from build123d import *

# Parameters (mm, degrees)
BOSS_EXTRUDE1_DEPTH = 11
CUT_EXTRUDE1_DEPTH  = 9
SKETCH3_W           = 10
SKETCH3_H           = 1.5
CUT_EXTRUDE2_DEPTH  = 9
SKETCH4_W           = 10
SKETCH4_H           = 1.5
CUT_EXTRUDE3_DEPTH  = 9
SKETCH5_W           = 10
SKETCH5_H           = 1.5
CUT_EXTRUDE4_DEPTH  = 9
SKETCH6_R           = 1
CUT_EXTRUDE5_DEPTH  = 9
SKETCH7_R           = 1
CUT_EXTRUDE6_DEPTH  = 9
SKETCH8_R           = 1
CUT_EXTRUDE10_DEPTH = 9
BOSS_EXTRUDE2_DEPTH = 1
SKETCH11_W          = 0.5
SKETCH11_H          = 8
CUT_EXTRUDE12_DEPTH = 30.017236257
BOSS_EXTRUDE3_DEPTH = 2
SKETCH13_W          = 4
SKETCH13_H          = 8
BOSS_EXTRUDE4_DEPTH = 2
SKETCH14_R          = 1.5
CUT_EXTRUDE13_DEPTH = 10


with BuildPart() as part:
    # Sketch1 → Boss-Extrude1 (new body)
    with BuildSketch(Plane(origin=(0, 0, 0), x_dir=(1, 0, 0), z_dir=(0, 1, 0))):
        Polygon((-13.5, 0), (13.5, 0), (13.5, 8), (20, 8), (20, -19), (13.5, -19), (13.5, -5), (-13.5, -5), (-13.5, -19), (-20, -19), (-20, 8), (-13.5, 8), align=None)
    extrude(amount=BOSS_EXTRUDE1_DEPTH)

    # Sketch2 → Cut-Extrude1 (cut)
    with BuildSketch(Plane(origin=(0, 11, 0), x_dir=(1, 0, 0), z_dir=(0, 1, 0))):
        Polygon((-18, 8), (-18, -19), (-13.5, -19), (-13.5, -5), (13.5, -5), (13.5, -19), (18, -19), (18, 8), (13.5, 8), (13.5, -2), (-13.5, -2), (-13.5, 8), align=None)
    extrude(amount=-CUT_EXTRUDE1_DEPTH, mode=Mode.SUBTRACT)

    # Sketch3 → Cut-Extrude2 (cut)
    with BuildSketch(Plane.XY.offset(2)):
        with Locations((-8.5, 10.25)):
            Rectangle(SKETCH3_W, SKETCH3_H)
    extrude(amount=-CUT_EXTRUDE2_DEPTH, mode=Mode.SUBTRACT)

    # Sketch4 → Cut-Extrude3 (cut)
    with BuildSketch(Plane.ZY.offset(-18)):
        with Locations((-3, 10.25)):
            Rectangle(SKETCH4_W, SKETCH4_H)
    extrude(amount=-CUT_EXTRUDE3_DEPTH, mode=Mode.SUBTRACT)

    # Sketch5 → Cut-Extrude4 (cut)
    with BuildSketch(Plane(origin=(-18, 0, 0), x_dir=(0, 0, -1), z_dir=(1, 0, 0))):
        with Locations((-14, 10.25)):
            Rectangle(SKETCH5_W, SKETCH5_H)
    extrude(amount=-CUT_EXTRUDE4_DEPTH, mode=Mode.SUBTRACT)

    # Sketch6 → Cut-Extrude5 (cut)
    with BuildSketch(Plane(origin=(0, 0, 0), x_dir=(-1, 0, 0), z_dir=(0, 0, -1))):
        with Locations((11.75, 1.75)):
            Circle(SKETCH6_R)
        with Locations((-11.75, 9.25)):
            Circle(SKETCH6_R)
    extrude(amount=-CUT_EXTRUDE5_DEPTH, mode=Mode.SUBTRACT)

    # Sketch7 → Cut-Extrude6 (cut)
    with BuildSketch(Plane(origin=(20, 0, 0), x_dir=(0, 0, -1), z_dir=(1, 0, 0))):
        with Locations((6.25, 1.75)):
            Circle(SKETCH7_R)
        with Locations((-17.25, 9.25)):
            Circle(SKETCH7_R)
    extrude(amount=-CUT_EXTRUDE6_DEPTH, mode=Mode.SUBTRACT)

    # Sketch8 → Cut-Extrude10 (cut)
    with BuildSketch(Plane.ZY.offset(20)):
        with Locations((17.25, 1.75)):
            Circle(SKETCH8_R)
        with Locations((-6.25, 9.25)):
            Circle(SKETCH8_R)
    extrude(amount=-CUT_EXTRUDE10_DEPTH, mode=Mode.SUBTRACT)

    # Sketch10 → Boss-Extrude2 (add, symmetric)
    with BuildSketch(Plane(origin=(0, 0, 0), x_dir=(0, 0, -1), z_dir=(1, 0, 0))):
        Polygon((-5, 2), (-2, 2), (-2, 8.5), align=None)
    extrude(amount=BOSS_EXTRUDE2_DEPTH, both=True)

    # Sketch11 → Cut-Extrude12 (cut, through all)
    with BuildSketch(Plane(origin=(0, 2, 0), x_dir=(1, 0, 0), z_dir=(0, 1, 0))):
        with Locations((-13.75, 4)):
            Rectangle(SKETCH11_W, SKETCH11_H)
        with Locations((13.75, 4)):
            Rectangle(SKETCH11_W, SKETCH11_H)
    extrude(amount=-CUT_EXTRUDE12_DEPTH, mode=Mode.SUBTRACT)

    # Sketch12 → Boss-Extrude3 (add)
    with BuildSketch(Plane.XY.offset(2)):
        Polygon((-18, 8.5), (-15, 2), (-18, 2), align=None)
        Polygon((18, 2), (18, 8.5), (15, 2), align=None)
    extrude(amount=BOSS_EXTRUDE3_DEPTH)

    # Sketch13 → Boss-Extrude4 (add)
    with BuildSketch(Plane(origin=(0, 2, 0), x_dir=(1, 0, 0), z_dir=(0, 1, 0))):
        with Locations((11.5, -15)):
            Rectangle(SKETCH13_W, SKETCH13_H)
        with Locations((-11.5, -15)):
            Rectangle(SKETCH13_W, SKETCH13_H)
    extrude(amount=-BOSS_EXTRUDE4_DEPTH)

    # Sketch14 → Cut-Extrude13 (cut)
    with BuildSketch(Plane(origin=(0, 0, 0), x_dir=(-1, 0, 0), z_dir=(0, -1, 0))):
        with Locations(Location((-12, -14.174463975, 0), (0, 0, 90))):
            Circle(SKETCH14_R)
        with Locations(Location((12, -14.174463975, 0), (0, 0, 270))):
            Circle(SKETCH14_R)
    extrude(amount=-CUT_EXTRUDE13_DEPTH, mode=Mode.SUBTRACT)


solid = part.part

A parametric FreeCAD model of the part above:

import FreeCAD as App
import Part
import Sketcher

V = App.Vector


def add_polygon(sketch, points):
    """Adds a closed chain of lines whose ends are joined by coincident constraints."""
    first, n = sketch.GeometryCount, len(points)
    for a, b in zip(points, points[1:] + points[:1]):
        sketch.addGeometry(Part.LineSegment(App.Vector(*a, 0), App.Vector(*b, 0)), False)
    for i in range(n):
        sketch.addConstraint(Sketcher.Constraint("Coincident", first + i, 2, first + (i + 1) % n, 1))

doc = App.newDocument("Part")
params = doc.addObject("Spreadsheet::Sheet", "Params")
for row, (alias, value) in enumerate([
    ("sketch1_width", "27 mm"),
    ("sketch1_height", "8 mm"),
    ("sketch1_height2", "14 mm"),
    ("sketch1_width2", "6.5 mm"),
    ("pad1_length", "11 mm"),
    ("sketch2_width", "27 mm"),
    ("sketch2_height", "14 mm"),
    ("sketch2_height2", "10 mm"),
    ("sketch2_width2", "4.5 mm"),
    ("pocket1_length", "9 mm"),
    ("sketch3_width", "10 mm"),
    ("sketch3_height", "1.5 mm"),
    ("pocket2_length", "9 mm"),
    ("sketch4_height", "10 mm"),
    ("sketch4_width", "1.5 mm"),
    ("pocket3_length", "9 mm"),
    ("sketch5_height", "10 mm"),
    ("sketch5_width", "1.5 mm"),
    ("pocket4_length", "9 mm"),
    ("sketch6_diameter", "2 mm"),
    ("pocket5_length", "9 mm"),
    ("sketch7_diameter", "2 mm"),
    ("pocket6_length", "9 mm"),
    ("sketch8_diameter", "2 mm"),
    ("pocket7_length", "9 mm"),
    ("sketch9_height", "3 mm"),
    ("sketch9_width", "6.5 mm"),
    ("pad2_length", "2 mm"),
    ("sketch10_height", "8 mm"),
    ("sketch10_width", "0.5 mm"),
    ("sketch11_width", "3 mm"),
    ("sketch11_height", "6.5 mm"),
    ("pad3_length", "2 mm"),
    ("sketch12_width", "4 mm"),
    ("sketch12_height", "8 mm"),
    ("pad4_length", "2 mm"),
    ("sketch13_diameter", "3 mm"),
    ("pocket9_length", "10 mm"),
], start=1):
    params.set(f"A{row}", alias)
    params.set(f"B{row}", "=" + value)
    params.setAlias(f"B{row}", alias)

body = doc.addObject("PartDesign::Body", "Body")

# Sketch on XZ plane
sketch1 = body.newObject("Sketcher::SketchObject", "Sketch")
sketch1.AttachmentSupport = (doc.getObject("XZ_Plane"), [""])
sketch1.MapMode = "FlatFace"
add_polygon(sketch1, [(14, 0), (-14, 0), (-14, -8), (-20, -8), (-20, 19), (-14, 19), (-14, 5), (14, 5), (14, 19), (20, 19), (20, -8), (14, -8)])  # lines 0-11
sketch1.addConstraint([
    Sketcher.Constraint("Horizontal", 0),
    Sketcher.Constraint("Vertical", 1),
    Sketcher.Constraint("Horizontal", 2),
    Sketcher.Constraint("Vertical", 3),
    Sketcher.Constraint("Horizontal", 4),
    Sketcher.Constraint("Vertical", 5),
    Sketcher.Constraint("Horizontal", 6),
    Sketcher.Constraint("Vertical", 7),
    Sketcher.Constraint("Horizontal", 8),
    Sketcher.Constraint("Vertical", 9),
    Sketcher.Constraint("Horizontal", 10),
    Sketcher.Constraint("Vertical", 11),
    Sketcher.Constraint("Symmetric", 0, 2, 11, 2, -1, 1),
    Sketcher.Constraint("Symmetric", 4, 2, 7, 2, -2),
    Sketcher.Constraint("Symmetric", 2, 2, 9, 2, -2),
    Sketcher.Constraint("Vertical", 1, 2, 4, 2),
    Sketcher.Constraint("Equal", 6, 3),
    Sketcher.Constraint("DistanceX", 0, 2, 0, 1, 27.0),
    Sketcher.Constraint("DistanceY", 1, 2, 1, 1, 8.0),
    Sketcher.Constraint("DistanceY", 5, 2, 5, 1, 14.0),
    Sketcher.Constraint("DistanceX", 2, 2, 2, 1, 6.5),
])
sketch1.setExpression("Constraints[29]", "Params.sketch1_width")
sketch1.setExpression("Constraints[30]", "Params.sketch1_height")
sketch1.setExpression("Constraints[31]", "Params.sketch1_height2")
sketch1.setExpression("Constraints[32]", "Params.sketch1_width2")
pad1 = body.newObject("PartDesign::Pad", "Pad")
pad1.Profile = sketch1
pad1.setExpression("Length", "Params.pad1_length")
pad1.Reversed = True

# Sketch on XZ plane
sketch2 = body.newObject("Sketcher::SketchObject", "Sketch001")
sketch2.AttachmentSupport = (doc.getObject("XZ_Plane"), [""])
sketch2.MapMode = "FlatFace"
sketch2.AttachmentOffset = App.Placement(V(0, 0, -11), App.Rotation())
add_polygon(sketch2, [(-18, -8), (-18, 19), (-13.5, 19), (-13.5, 5), (13.5, 5), (13.5, 19), (18, 19), (18, -8), (13.5, -8), (13.5, 2), (-13.5, 2), (-13.5, -8)])  # lines 0-11
sketch2.addConstraint([
    Sketcher.Constraint("Vertical", 0),
    Sketcher.Constraint("Horizontal", 1),
    Sketcher.Constraint("Vertical", 2),
    Sketcher.Constraint("Horizontal", 3),
    Sketcher.Constraint("Vertical", 4),
    Sketcher.Constraint("Horizontal", 5),
    Sketcher.Constraint("Vertical", 6),
    Sketcher.Constraint("Horizontal", 7),
    Sketcher.Constraint("Vertical", 8),
    Sketcher.Constraint("Horizontal", 9),
    Sketcher.Constraint("Vertical", 10),
    Sketcher.Constraint("Horizontal", 11),
    Sketcher.Constraint("Symmetric", 1, 2, 4, 2, -2),
    Sketcher.Constraint("Symmetric", 7, 2, 10, 2, -2),
    Sketcher.Constraint("Vertical", 4, 2, 7, 2),
    Sketcher.Constraint("Equal", 1, 5),
    Sketcher.Constraint("Equal", 9, 0),
    Sketcher.Constraint("DistanceX", 3, 1, 3, 2, 27.0),
    Sketcher.Constraint("DistanceY", 2, 2, 2, 1, 14.0),
    Sketcher.Constraint("DistanceY", 8, 1, 8, 2, 10.0),
    Sketcher.Constraint("DistanceX", 1, 1, 1, 2, 4.5),
    Sketcher.Constraint("DistanceY", -1, 1, 0, 2, 19.0),
])
sketch2.setExpression("Constraints[29]", "Params.sketch2_width")
sketch2.setExpression("Constraints[30]", "Params.sketch2_height")
sketch2.setExpression("Constraints[31]", "Params.sketch2_height2")
sketch2.setExpression("Constraints[32]", "Params.sketch2_width2")
pocket1 = body.newObject("PartDesign::Pocket", "Pocket")
pocket1.Profile = sketch2
pocket1.setExpression("Length", "Params.pocket1_length")
pocket1.Reversed = True

# Sketch on XY plane
sketch3 = body.newObject("Sketcher::SketchObject", "Sketch002")
sketch3.AttachmentSupport = (doc.getObject("XY_Plane"), [""])
sketch3.MapMode = "FlatFace"
sketch3.AttachmentOffset = App.Placement(V(0, 0, 2), App.Rotation())
add_polygon(sketch3, [(-13.5, 11), (-13.5, 9.5), (-3.5, 9.5), (-3.5, 11)])  # lines 0-3
sketch3.addConstraint([
    Sketcher.Constraint("Vertical", 0),
    Sketcher.Constraint("Horizontal", 1),
    Sketcher.Constraint("Vertical", 2),
    Sketcher.Constraint("Horizontal", 3),
    Sketcher.Constraint("DistanceX", 1, 1, 1, 2, 10.0),
    Sketcher.Constraint("DistanceY", 0, 2, 0, 1, 1.5),
    Sketcher.Constraint("DistanceY", -1, 1, 2, 2, 11.0),
    Sketcher.Constraint("DistanceX", 0, 2, -1, 1, 13.5),
])
sketch3.setExpression("Constraints[8]", "Params.sketch3_width")
sketch3.setExpression("Constraints[9]", "Params.sketch3_height")
pocket2 = body.newObject("PartDesign::Pocket", "Pocket001")
pocket2.Profile = sketch3
pocket2.setExpression("Length", "Params.pocket2_length")

# Sketch on YZ plane
sketch4 = body.newObject("Sketcher::SketchObject", "Sketch003")
sketch4.AttachmentSupport = (doc.getObject("YZ_Plane"), [""])
sketch4.MapMode = "FlatFace"
sketch4.AttachmentOffset = App.Placement(V(0, 0, 18), App.Rotation())
add_polygon(sketch4, [(11, -8), (9.5, -8), (9.5, 2), (11, 2)])  # lines 0-3
sketch4.addConstraint([
    Sketcher.Constraint("Horizontal", 0),
    Sketcher.Constraint("Vertical", 1),
    Sketcher.Constraint("Horizontal", 2),
    Sketcher.Constraint("Vertical", 3),
    Sketcher.Constraint("DistanceY", 1, 1, 1, 2, 10.0),
    Sketcher.Constraint("DistanceX", 0, 2, 0, 1, 1.5),
    Sketcher.Constraint("DistanceY", 0, 2, -1, 1, 8.0),
    Sketcher.Constraint("DistanceX", -1, 1, 2, 2, 11.0),
])
sketch4.setExpression("Constraints[8]", "Params.sketch4_height")
sketch4.setExpression("Constraints[9]", "Params.sketch4_width")
pocket3 = body.newObject("PartDesign::Pocket", "Pocket002")
pocket3.Profile = sketch4
pocket3.setExpression("Length", "Params.pocket3_length")
pocket3.Reversed = True

# Sketch on YZ plane
sketch5 = body.newObject("Sketcher::SketchObject", "Sketch004")
sketch5.AttachmentSupport = (doc.getObject("YZ_Plane"), [""])
sketch5.MapMode = "FlatFace"
sketch5.AttachmentOffset = App.Placement(V(0, 0, -18), App.Rotation())
add_polygon(sketch5, [(11, 19), (9.5, 19), (9.5, 9), (11, 9)])  # lines 0-3
sketch5.addConstraint([
    Sketcher.Constraint("Horizontal", 0),
    Sketcher.Constraint("Vertical", 1),
    Sketcher.Constraint("Horizontal", 2),
    Sketcher.Constraint("Vertical", 3),
    Sketcher.Constraint("DistanceY", 1, 2, 1, 1, 10.0),
    Sketcher.Constraint("DistanceX", 0, 2, 0, 1, 1.5),
    Sketcher.Constraint("DistanceY", -1, 1, 0, 2, 19.0),
    Sketcher.Constraint("DistanceX", -1, 1, 2, 2, 11.0),
])
sketch5.setExpression("Constraints[8]", "Params.sketch5_height")
sketch5.setExpression("Constraints[9]", "Params.sketch5_width")
pocket4 = body.newObject("PartDesign::Pocket", "Pocket003")
pocket4.Profile = sketch5
pocket4.setExpression("Length", "Params.pocket4_length")

# Sketch on XY plane
sketch6 = body.newObject("Sketcher::SketchObject", "Sketch005")
sketch6.AttachmentSupport = (doc.getObject("XY_Plane"), [""])
sketch6.MapMode = "FlatFace"
sketch6.addGeometry([
    Part.Circle(V(-11.8, 1.8, 0), V(0, 0, 1), 1),
    Part.Circle(V(11.8, 9.2, 0), V(0, 0, 1), 1),
], False)
sketch6.addConstraint([
    Sketcher.Constraint("Equal", 0, 1),
    Sketcher.Constraint("Diameter", 0, 2.0),
    Sketcher.Constraint("DistanceX", 0, 3, 1, 3, 23.5),
    Sketcher.Constraint("DistanceY", 0, 3, 1, 3, 7.5),
    Sketcher.Constraint("DistanceX", 0, 3, -1, 1, 11.75),
    Sketcher.Constraint("DistanceY", -1, 1, 0, 3, 1.75),
])
sketch6.setExpression("Constraints[1]", "Params.sketch6_diameter")
pocket5 = body.newObject("PartDesign::Pocket", "Pocket004")
pocket5.Profile = sketch6
pocket5.setExpression("Length", "Params.pocket5_length")
pocket5.Reversed = True

# Sketch on YZ plane
sketch7 = body.newObject("Sketcher::SketchObject", "Sketch006")
sketch7.AttachmentSupport = (doc.getObject("YZ_Plane"), [""])
sketch7.MapMode = "FlatFace"
sketch7.AttachmentOffset = App.Placement(V(0, 0, 20), App.Rotation())
sketch7.addGeometry([
    Part.Circle(V(1.8, -6.2, 0), V(0, 0, 1), 1),
    Part.Circle(V(9.2, 17.2, 0), V(0, 0, 1), 1),
], False)
sketch7.addConstraint([
    Sketcher.Constraint("Equal", 0, 1),
    Sketcher.Constraint("Diameter", 0, 2.0),
    Sketcher.Constraint("DistanceX", 0, 3, 1, 3, 7.5),
    Sketcher.Constraint("DistanceY", 0, 3, 1, 3, 23.5),
    Sketcher.Constraint("DistanceX", -1, 1, 0, 3, 1.75),
    Sketcher.Constraint("DistanceY", 0, 3, -1, 1, 6.25),
])
sketch7.setExpression("Constraints[1]", "Params.sketch7_diameter")
pocket6 = body.newObject("PartDesign::Pocket", "Pocket005")
pocket6.Profile = sketch7
pocket6.setExpression("Length", "Params.pocket6_length")

# Sketch on YZ plane
sketch8 = body.newObject("Sketcher::SketchObject", "Sketch007")
sketch8.AttachmentSupport = (doc.getObject("YZ_Plane"), [""])
sketch8.MapMode = "FlatFace"
sketch8.AttachmentOffset = App.Placement(V(0, 0, -20), App.Rotation())
sketch8.addGeometry([
    Part.Circle(V(1.8, 17.2, 0), V(0, 0, 1), 1),
    Part.Circle(V(9.2, -6.2, 0), V(0, 0, 1), 1),
], False)
sketch8.addConstraint([
    Sketcher.Constraint("Equal", 0, 1),
    Sketcher.Constraint("Diameter", 0, 2.0),
    Sketcher.Constraint("DistanceX", 0, 3, 1, 3, 7.5),
    Sketcher.Constraint("DistanceY", 1, 3, 0, 3, 23.5),
    Sketcher.Constraint("DistanceX", -1, 1, 0, 3, 1.75),
    Sketcher.Constraint("DistanceY", -1, 1, 0, 3, 17.25),
])
sketch8.setExpression("Constraints[1]", "Params.sketch8_diameter")
pocket7 = body.newObject("PartDesign::Pocket", "Pocket006")
pocket7.Profile = sketch8
pocket7.setExpression("Length", "Params.pocket7_length")
pocket7.Reversed = True

# Sketch on YZ plane
sketch9 = body.newObject("Sketcher::SketchObject", "Sketch008")
sketch9.AttachmentSupport = (doc.getObject("YZ_Plane"), [""])
sketch9.MapMode = "FlatFace"
add_polygon(sketch9, [(2, 5), (2, 2), (8.5, 2)])  # lines 0-2
sketch9.addConstraint([
    Sketcher.Constraint("Vertical", 0),
    Sketcher.Constraint("Horizontal", 1),
    Sketcher.Constraint("DistanceY", 0, 2, 0, 1, 3.0),
    Sketcher.Constraint("DistanceX", 1, 1, 1, 2, 6.5),
    Sketcher.Constraint("DistanceX", -1, 1, 0, 2, 2.0),
    Sketcher.Constraint("DistanceY", -1, 1, 0, 2, 2.0),
])
sketch9.setExpression("Constraints[5]", "Params.sketch9_height")
sketch9.setExpression("Constraints[6]", "Params.sketch9_width")
pad2 = body.newObject("PartDesign::Pad", "Pad001")
pad2.Profile = sketch9
pad2.setExpression("Length", "Params.pad2_length")
pad2.Midplane = True

# Sketch on XZ plane
sketch10 = body.newObject("Sketcher::SketchObject", "Sketch009")
sketch10.AttachmentSupport = (doc.getObject("XZ_Plane"), [""])
sketch10.MapMode = "FlatFace"
sketch10.AttachmentOffset = App.Placement(V(0, 0, -2), App.Rotation())
add_polygon(sketch10, [(-14, -8), (-14, 0), (-13.5, 0), (-13.5, -8)])  # lines 0-3
add_polygon(sketch10, [(13.5, -8), (13.5, 0), (14, 0), (14, -8)])  # lines 4-7
sketch10.addConstraint([
    Sketcher.Constraint("Vertical", 0),
    Sketcher.Constraint("Horizontal", 1),
    Sketcher.Constraint("Vertical", 2),
    Sketcher.Constraint("Horizontal", 3),
    Sketcher.Constraint("Vertical", 4),
    Sketcher.Constraint("Horizontal", 5),
    Sketcher.Constraint("Vertical", 6),
    Sketcher.Constraint("Horizontal", 7),
    Sketcher.Constraint("Symmetric", 1, 2, 4, 2, -1, 1),
    Sketcher.Constraint("Symmetric", 0, 2, 5, 2, -2),
    Sketcher.Constraint("Horizontal", 3, 2, 6, 2),
    Sketcher.Constraint("DistanceY", 0, 1, 0, 2, 8.0),
    Sketcher.Constraint("DistanceX", 1, 1, 1, 2, 0.5),
    Sketcher.Constraint("DistanceX", 0, 2, -1, 1, 14.0),
])
sketch10.setExpression("Constraints[19]", "Params.sketch10_height")
sketch10.setExpression("Constraints[20]", "Params.sketch10_width")
pocket8 = body.newObject("PartDesign::Pocket", "Pocket007")
pocket8.Profile = sketch10
pocket8.Type = "ThroughAll"
pocket8.Reversed = True

# Sketch on XY plane
sketch11 = body.newObject("Sketcher::SketchObject", "Sketch010")
sketch11.AttachmentSupport = (doc.getObject("XY_Plane"), [""])
sketch11.MapMode = "FlatFace"
sketch11.AttachmentOffset = App.Placement(V(0, 0, 2), App.Rotation())
add_polygon(sketch11, [(-15, 2), (-18, 8.5), (-18, 2)])  # lines 0-2
add_polygon(sketch11, [(18, 2), (18, 8.5), (15, 2)])  # lines 3-5
sketch11.addConstraint([
    Sketcher.Constraint("Vertical", 1),
    Sketcher.Constraint("Horizontal", 2),
    Sketcher.Constraint("Vertical", 3),
    Sketcher.Constraint("Horizontal", 5),
    Sketcher.Constraint("Symmetric", 0, 2, 3, 2, -2),
    Sketcher.Constraint("Symmetric", 2, 2, 4, 2, -2),
    Sketcher.Constraint("DistanceX", 2, 1, 2, 2, 3.0),
    Sketcher.Constraint("DistanceY", 1, 2, 1, 1, 6.5),
    Sketcher.Constraint("DistanceX", 0, 2, -1, 1, 18.0),
    Sketcher.Constraint("DistanceY", -1, 1, 1, 2, 2.0),
])
sketch11.setExpression("Constraints[12]", "Params.sketch11_width")
sketch11.setExpression("Constraints[13]", "Params.sketch11_height")
pad3 = body.newObject("PartDesign::Pad", "Pad002")
pad3.Profile = sketch11
pad3.setExpression("Length", "Params.pad3_length")

# Sketch on XZ plane
sketch12 = body.newObject("Sketcher::SketchObject", "Sketch011")
sketch12.AttachmentSupport = (doc.getObject("XZ_Plane"), [""])
sketch12.MapMode = "FlatFace"
sketch12.AttachmentOffset = App.Placement(V(0, 0, -2), App.Rotation())
add_polygon(sketch12, [(9.5, 11), (9.5, 19), (13.5, 19), (13.5, 11)])  # lines 0-3
add_polygon(sketch12, [(-13.5, 11), (-13.5, 19), (-9.5, 19), (-9.5, 11)])  # lines 4-7
sketch12.addConstraint([
    Sketcher.Constraint("Vertical", 0),
    Sketcher.Constraint("Horizontal", 1),
    Sketcher.Constraint("Vertical", 2),
    Sketcher.Constraint("Horizontal", 3),
    Sketcher.Constraint("Vertical", 4),
    Sketcher.Constraint("Horizontal", 5),
    Sketcher.Constraint("Vertical", 6),
    Sketcher.Constraint("Horizontal", 7),
    Sketcher.Constraint("Symmetric", 1, 2, 4, 2, -2),
    Sketcher.Constraint("Symmetric", 3, 2, 6, 2, -2),
    Sketcher.Constraint("DistanceX", 1, 1, 1, 2, 4.0),
    Sketcher.Constraint("DistanceY", 0, 1, 0, 2, 8.0),
    Sketcher.Constraint("DistanceY", -1, 1, 0, 2, 19.0),
    Sketcher.Constraint("DistanceX", 4, 2, 0, 2, 23.0),
])
sketch12.setExpression("Constraints[18]", "Params.sketch12_width")
sketch12.setExpression("Constraints[19]", "Params.sketch12_height")
pad4 = body.newObject("PartDesign::Pad", "Pad003")
pad4.Profile = sketch12
pad4.setExpression("Length", "Params.pad4_length")

# Sketch on XZ plane
sketch13 = body.newObject("Sketcher::SketchObject", "Sketch012")
sketch13.AttachmentSupport = (doc.getObject("XZ_Plane"), [""])
sketch13.MapMode = "FlatFace"
sketch13.addGeometry([
    Part.Circle(V(12, 14.2, 0), V(0, 0, 1), 1.5),
    Part.Circle(V(-12, 14.2, 0), V(0, 0, 1), 1.5),
], False)
sketch13.addConstraint([
    Sketcher.Constraint("Equal", 0, 1),
    Sketcher.Constraint("Symmetric", 0, 3, 1, 3, -2),
    Sketcher.Constraint("Diameter", 0, 3.0),
    Sketcher.Constraint("DistanceX", -1, 1, 0, 3, 12.0),
    Sketcher.Constraint("DistanceY", -1, 1, 0, 3, 14.174464),
])
sketch13.setExpression("Constraints[2]", "Params.sketch13_diameter")
pocket9 = body.newObject("PartDesign::Pocket", "Pocket008")
pocket9.Profile = sketch13
pocket9.setExpression("Length", "Params.pocket9_length")

doc.recompute()
